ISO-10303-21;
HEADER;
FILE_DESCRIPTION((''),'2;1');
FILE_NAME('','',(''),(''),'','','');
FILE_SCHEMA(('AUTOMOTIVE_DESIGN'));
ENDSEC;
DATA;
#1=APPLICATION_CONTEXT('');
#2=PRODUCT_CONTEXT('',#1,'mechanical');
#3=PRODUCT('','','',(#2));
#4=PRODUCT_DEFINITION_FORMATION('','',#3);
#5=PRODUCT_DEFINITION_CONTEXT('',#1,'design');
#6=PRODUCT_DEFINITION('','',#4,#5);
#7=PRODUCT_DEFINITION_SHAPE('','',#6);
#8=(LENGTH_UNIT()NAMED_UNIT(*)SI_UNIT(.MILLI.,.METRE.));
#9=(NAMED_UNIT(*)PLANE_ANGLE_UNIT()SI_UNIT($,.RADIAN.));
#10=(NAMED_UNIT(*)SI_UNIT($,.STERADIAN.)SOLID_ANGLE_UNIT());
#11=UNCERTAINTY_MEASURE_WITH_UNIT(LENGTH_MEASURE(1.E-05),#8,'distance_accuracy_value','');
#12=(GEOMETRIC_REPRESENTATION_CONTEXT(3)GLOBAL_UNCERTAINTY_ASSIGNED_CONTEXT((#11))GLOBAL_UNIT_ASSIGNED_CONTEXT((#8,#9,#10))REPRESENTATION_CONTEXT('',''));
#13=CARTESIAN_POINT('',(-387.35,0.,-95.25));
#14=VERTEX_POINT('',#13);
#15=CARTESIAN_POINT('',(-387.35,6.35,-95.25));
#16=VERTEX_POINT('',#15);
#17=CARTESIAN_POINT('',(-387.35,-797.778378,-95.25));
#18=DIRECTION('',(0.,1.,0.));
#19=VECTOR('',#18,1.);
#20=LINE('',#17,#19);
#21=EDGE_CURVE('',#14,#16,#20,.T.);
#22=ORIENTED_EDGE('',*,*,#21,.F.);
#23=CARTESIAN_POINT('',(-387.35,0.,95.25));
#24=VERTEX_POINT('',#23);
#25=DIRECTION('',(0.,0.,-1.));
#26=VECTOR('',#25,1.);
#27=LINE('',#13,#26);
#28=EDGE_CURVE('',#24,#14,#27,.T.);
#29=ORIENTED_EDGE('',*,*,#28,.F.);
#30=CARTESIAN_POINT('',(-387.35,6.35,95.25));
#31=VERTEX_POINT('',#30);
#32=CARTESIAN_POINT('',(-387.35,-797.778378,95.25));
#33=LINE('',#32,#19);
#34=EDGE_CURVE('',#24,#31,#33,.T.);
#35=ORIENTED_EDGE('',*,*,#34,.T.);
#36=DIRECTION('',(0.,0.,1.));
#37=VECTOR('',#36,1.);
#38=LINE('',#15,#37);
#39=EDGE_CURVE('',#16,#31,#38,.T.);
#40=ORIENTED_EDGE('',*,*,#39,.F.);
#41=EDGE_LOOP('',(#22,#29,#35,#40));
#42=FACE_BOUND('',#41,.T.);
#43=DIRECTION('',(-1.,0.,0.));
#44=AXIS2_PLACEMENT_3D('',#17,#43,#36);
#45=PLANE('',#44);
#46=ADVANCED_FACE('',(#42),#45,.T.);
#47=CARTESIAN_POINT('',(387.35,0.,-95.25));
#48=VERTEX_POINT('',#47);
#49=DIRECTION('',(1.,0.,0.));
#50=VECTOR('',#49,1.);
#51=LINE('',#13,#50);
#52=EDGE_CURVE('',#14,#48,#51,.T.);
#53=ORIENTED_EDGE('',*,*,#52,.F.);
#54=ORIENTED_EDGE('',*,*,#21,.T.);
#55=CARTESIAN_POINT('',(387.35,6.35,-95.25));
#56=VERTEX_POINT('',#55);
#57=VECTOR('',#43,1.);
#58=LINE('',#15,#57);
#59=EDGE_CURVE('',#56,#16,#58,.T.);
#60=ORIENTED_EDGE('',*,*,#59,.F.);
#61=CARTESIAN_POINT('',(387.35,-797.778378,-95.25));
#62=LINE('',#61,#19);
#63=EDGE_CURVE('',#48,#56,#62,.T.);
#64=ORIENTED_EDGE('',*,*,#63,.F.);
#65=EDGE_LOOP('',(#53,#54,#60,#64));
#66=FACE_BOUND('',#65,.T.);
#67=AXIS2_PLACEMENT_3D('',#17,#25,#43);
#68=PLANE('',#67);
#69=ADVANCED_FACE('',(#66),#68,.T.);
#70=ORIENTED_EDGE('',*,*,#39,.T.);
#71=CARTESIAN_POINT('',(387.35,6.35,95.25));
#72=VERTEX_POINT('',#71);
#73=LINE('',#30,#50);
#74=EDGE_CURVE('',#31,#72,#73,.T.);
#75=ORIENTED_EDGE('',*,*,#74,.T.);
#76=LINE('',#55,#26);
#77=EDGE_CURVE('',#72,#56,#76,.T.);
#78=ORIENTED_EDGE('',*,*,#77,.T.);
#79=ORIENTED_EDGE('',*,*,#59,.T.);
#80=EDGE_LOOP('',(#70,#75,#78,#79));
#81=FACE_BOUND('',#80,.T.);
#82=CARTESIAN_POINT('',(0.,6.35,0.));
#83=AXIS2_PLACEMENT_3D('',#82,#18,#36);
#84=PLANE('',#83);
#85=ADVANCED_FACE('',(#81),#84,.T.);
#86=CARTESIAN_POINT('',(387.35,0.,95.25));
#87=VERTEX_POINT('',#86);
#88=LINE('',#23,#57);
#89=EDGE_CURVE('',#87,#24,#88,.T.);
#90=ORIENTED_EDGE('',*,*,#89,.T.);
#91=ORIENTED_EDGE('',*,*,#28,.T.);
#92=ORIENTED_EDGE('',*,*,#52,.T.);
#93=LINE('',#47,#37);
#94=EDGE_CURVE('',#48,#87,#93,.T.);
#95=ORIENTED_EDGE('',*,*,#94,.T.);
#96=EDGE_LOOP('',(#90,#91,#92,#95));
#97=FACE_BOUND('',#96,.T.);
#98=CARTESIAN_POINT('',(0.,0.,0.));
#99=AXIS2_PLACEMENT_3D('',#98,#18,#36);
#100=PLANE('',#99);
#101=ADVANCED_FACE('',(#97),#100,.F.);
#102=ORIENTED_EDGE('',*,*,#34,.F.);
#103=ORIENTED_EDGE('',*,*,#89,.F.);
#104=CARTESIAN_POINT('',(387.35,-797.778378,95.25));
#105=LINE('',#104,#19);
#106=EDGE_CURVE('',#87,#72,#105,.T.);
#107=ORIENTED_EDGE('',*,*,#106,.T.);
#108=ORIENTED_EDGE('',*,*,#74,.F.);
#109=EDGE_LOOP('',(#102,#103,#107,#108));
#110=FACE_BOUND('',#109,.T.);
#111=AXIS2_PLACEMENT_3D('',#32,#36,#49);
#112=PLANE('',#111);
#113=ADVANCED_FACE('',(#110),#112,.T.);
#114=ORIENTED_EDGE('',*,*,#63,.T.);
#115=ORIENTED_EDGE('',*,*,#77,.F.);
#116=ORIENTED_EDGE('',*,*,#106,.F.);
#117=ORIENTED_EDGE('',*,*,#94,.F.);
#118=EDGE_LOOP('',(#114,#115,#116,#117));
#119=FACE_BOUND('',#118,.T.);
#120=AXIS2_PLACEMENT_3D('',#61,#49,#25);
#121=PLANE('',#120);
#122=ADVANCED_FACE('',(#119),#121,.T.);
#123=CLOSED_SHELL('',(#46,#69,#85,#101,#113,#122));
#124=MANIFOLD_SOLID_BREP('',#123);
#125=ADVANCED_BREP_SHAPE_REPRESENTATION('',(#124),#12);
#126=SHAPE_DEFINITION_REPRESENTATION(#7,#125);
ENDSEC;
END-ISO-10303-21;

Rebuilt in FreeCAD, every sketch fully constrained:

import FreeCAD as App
import Part
import Sketcher
from FreeCAD import Vector
Q = App.Units.Quantity


def add_polygon(sketch, points):
    """Adds a closed chain of lines whose ends are joined by coincident constraints."""
    first, n = sketch.GeometryCount, len(points)
    for a, b in zip(points, points[1:] + points[:1]):
        sketch.addGeometry(Part.LineSegment(App.Vector(*a, 0), App.Vector(*b, 0)), False)
    for i in range(n):
        sketch.addConstraint(Sketcher.Constraint("Coincident", first + i, 2, first + (i + 1) % n, 1))

doc = App.newDocument("Part")
body = doc.addObject("PartDesign::Body", "Body")

sketch1 = body.newObject("Sketcher::SketchObject", "Sketch")
sketch1.AttachmentSupport = (doc.getObject("XZ_Plane"), [""])
sketch1.MapMode = "FlatFace"
add_polygon(sketch1, [(-381, -89), (-381, 89), (381, 89), (381, -89)])
sketch1.addConstraint(Sketcher.Constraint("Vertical", 0))
sketch1.addConstraint(Sketcher.Constraint("Horizontal", 1))
sketch1.addConstraint(Sketcher.Constraint("Vertical", 2))
sketch1.addConstraint(Sketcher.Constraint("Horizontal", 3))
sketch1.addConstraint(Sketcher.Constraint("Symmetric", 0, 2, 2, 2, -1, 1))
sketch1.addConstraint(Sketcher.Constraint("DistanceX", 1, 1, 1, 2, Q("30 in")))
sketch1.addConstraint(Sketcher.Constraint("DistanceY", 0, 1, 0, 2, Q("7 in")))
pad1 = body.newObject("PartDesign::Pad", "Pad")
pad1.Profile = sketch1
pad1.Length = Q("0.25 in")
pad1.Reversed = True

sketch2 = body.newObject("Sketcher::SketchObject", "Sketch001")
sketch2.AttachmentSupport = (doc.getObject("XZ_Plane"), [""])
sketch2.MapMode = "FlatFace"
sketch2.AttachmentOffset = App.Placement(Vector(0, 0, -0.25 * 25.4), App.Rotation())
add_polygon(sketch2, [(-387, -95), (-387, 95), (387, 95), (387, -95)])
add_polygon(sketch2, [(381, 89), (-381, 89), (-381, -89), (381, -89)])
sketch2.addConstraint(Sketcher.Constraint("Vertical", 0))
sketch2.addConstraint(Sketcher.Constraint("Horizontal", 1))
sketch2.addConstraint(Sketcher.Constraint("Vertical", 2))
sketch2.addConstraint(Sketcher.Constraint("Horizontal", 3))
sketch2.addConstraint(Sketcher.Constraint("Horizontal", 4))
sketch2.addConstraint(Sketcher.Constraint("Vertical", 5))
sketch2.addConstraint(Sketcher.Constraint("Horizontal", 6))
sketch2.addConstraint(Sketcher.Constraint("Vertical", 7))
sketch2.addConstraint(Sketcher.Constraint("Symmetric", 0, 2, 2, 2, -1, 1))
sketch2.addConstraint(Sketcher.Constraint("Symmetric", 4, 2, 6, 2, -1, 1))
sketch2.addConstraint(Sketcher.Constraint("DistanceX", 4, 2, 4, 1, Q("30 in")))
sketch2.addConstraint(Sketcher.Constraint("DistanceY", 5, 2, 5, 1, Q("7 in")))
sketch2.addConstraint(Sketcher.Constraint("DistanceX", 1, 1, 1, 2, Q("30.5 in")))
sketch2.addConstraint(Sketcher.Constraint("DistanceY", 0, 1, 0, 2, Q("7.5 in")))
pad2 = body.newObject("PartDesign::Pad", "Pad001")
pad2.Profile = sketch2
pad2.Length = Q("0.25 in")

doc.recompute()
